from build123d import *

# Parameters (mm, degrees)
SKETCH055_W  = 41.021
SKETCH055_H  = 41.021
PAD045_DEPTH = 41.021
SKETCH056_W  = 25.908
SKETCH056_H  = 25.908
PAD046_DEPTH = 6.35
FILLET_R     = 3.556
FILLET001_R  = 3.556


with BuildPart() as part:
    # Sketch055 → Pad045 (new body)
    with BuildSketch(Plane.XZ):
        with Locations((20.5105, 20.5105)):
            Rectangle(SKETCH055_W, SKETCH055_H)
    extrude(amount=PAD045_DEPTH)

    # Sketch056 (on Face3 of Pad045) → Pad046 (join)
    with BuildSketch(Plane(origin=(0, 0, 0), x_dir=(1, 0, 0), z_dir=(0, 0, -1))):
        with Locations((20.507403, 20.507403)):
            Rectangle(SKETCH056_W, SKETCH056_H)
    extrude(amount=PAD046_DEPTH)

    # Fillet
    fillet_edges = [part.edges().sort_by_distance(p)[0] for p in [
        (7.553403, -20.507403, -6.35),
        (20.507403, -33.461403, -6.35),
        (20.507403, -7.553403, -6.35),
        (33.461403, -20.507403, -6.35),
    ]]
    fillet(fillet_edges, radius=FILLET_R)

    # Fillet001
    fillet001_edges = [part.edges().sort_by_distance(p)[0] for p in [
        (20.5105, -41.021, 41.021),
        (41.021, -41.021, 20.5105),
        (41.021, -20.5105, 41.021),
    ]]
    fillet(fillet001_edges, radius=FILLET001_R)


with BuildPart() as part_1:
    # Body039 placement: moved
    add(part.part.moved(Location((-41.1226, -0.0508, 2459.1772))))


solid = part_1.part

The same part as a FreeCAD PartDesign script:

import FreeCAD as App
import Part
import Sketcher

V = App.Vector
Q = App.Units.Quantity


def edges_at(feature, points):
    """Names of the edges that pass closest to the given points."""
    edges = feature.Shape.Edges
    near = lambda p: min(range(len(edges)), key=lambda i: edges[i].distToShape(Part.Vertex(*p))[0])
    return sorted({f"Edge{near(p) + 1}" for p in points})


def add_polygon(sketch, points):
    """Adds a closed chain of lines whose ends are joined by coincident constraints."""
    first, n = sketch.GeometryCount, len(points)
    for a, b in zip(points, points[1:] + points[:1]):
        sketch.addGeometry(Part.LineSegment(App.Vector(*a, 0), App.Vector(*b, 0)), False)
    for i in range(n):
        sketch.addConstraint(Sketcher.Constraint("Coincident", first + i, 2, first + (i + 1) % n, 1))

doc = App.newDocument("Part")
body = doc.addObject("PartDesign::Body", "Body")

# Sketch on XZ plane
sketch1 = doc.addObject("Sketcher::SketchObject", "Sketch")
body.addObject(sketch1)
sketch1.AttachmentSupport = (doc.XZ_Plane, [""])
sketch1.MapMode = "FlatFace"
add_polygon(sketch1, [(0, 41), (0, 0), (41, 0), (41, 41)])  # lines 0-3
sketch1.addConstraint([
    Sketcher.Constraint("Vertical", 0),
    Sketcher.Constraint("Horizontal", 1),
    Sketcher.Constraint("Vertical", 2),
    Sketcher.Constraint("Horizontal", 3),
    Sketcher.Constraint("Coincident", 0, 2, -1, 1),
    Sketcher.Constraint("Equal", 3, 0),
    Sketcher.Constraint("DistanceX", 1, 1, 1, 2, Q("1.615 in")),
])
pad1 = doc.addObject("PartDesign::Pad", "Pad")
body.addObject(pad1)
pad1.Profile = sketch1
pad1.Length = Q("1.615 in")

# Sketch on XY plane
sketch2 = doc.addObject("Sketcher::SketchObject", "Sketch001")
body.addObject(sketch2)
sketch2.AttachmentSupport = (doc.XY_Plane, [""])
sketch2.MapMode = "FlatFace"
add_polygon(sketch2, [(8, -33), (8, -8), (33, -8), (33, -33)])  # lines 0-3
sketch2.addConstraint([
    Sketcher.Constraint("Vertical", 0),
    Sketcher.Constraint("Horizontal", 1),
    Sketcher.Constraint("Vertical", 2),
    Sketcher.Constraint("Horizontal", 3),
    Sketcher.Constraint("Equal", 3, 0),
    Sketcher.Constraint("DistanceX", 1, 1, 1, 2, Q("1.02 in")),
    Sketcher.Constraint("DistanceX", -1, 1, 0, 2, 7.553403),
    Sketcher.Constraint("DistanceY", 0, 2, -1, 1, 7.553403),
])
pad2 = doc.addObject("PartDesign::Pad", "Pad001")
body.addObject(pad2)
pad2.Profile = sketch2
pad2.Length = Q("0.25 in")
pad2.Reversed = True
doc.recompute()

fillet = doc.addObject("PartDesign::Fillet", "Fillet")
body.addObject(fillet)
fillet.Base = (pad2, edges_at(pad2, [
    (7.553, -20.507, -6.35),
    (20.507, -33.461, -6.35),
    (20.507, -7.553, -6.35),
    (33.461, -20.507, -6.35),
]))
fillet.Radius = Q("0.14 in")
doc.recompute()

fillet2 = doc.addObject("PartDesign::Fillet", "Fillet001")
body.addObject(fillet2)
fillet2.Base = (fillet, edges_at(fillet, [(20.511, -41.021, 41.021), (41.021, -41.021, 20.511), (41.021, -20.511, 41.021)]))
fillet2.Radius = Q("0.14 in")
body2 = doc.addObject("PartDesign::Body", "Body001")
doc.recompute()

body.Placement = App.Placement(V(-41.1226, -0.0508, 2459.1772), App.Rotation(V(0, 0, 1), 0))
boolean = doc.addObject("PartDesign::Boolean", "Boolean")
body2.addObject(boolean)
boolean.Type = "Fuse"
boolean.addObjects([body])

doc.recompute()
